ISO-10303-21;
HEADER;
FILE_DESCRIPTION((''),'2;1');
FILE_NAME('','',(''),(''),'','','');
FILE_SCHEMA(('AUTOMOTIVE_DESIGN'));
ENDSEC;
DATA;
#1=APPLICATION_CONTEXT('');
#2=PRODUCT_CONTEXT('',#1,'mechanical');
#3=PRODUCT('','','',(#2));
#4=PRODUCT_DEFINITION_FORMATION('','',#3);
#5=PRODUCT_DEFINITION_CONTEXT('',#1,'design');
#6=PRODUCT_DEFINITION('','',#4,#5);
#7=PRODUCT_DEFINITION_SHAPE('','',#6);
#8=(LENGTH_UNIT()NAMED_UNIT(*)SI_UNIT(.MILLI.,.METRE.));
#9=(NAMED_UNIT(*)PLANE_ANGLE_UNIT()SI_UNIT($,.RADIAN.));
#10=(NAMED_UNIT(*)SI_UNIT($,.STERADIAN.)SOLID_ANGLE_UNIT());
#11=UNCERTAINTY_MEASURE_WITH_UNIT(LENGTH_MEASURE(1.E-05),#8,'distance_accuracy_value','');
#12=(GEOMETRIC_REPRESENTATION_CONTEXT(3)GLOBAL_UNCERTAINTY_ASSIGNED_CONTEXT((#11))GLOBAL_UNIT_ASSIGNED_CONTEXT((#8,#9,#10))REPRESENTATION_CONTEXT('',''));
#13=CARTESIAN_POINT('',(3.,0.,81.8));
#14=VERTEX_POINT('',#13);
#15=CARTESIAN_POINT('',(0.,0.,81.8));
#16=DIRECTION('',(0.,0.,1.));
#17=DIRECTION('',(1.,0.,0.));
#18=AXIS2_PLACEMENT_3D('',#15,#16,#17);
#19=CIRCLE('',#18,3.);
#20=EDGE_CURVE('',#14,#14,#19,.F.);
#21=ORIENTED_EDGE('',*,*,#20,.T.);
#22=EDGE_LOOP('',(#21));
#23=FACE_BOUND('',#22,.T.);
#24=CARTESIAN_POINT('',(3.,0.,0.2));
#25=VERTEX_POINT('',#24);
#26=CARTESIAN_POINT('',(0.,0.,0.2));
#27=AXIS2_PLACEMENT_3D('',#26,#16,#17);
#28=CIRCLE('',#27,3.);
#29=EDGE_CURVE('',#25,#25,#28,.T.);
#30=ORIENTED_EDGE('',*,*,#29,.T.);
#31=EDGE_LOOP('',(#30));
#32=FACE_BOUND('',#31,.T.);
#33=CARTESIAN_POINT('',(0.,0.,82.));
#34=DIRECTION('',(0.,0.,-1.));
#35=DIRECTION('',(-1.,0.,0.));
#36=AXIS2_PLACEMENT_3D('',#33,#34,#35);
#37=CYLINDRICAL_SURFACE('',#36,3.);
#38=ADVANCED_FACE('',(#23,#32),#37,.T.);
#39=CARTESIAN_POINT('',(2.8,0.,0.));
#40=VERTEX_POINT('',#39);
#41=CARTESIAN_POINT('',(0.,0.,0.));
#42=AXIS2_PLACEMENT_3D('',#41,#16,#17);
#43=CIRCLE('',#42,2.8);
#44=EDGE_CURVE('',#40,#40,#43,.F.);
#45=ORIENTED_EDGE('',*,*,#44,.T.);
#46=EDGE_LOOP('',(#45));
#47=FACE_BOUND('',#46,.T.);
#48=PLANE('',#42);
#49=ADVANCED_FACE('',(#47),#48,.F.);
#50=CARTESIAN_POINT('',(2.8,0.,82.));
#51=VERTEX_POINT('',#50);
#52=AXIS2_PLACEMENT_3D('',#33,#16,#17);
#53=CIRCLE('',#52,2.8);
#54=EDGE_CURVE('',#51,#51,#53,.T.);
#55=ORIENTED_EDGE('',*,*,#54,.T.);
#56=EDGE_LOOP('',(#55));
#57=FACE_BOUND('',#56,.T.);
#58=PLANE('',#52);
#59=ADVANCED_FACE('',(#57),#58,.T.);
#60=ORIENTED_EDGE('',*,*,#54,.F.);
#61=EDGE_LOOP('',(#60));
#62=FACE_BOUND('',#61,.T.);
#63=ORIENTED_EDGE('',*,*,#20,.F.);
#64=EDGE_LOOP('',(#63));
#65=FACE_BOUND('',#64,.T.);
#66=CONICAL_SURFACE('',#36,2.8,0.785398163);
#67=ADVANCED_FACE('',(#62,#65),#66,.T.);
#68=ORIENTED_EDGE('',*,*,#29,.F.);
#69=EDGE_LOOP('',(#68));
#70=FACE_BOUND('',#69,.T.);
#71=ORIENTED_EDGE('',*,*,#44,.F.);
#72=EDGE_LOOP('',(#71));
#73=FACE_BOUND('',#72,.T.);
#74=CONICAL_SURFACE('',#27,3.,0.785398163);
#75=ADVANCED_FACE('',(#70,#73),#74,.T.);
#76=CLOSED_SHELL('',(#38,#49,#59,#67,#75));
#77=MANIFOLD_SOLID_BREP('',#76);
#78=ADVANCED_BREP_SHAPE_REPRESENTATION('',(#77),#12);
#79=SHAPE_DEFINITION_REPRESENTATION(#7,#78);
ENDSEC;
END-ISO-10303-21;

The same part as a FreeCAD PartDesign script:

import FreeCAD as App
import Part
import Sketcher
from FreeCAD import Vector
Q = App.Units.Quantity


def edges_at(feature, points):
    """Names of the edges that pass closest to the given points."""
    edges = feature.Shape.Edges
    near = lambda p: min(range(len(edges)), key=lambda i: edges[i].distToShape(Part.Vertex(*p))[0])
    return sorted({f"Edge{near(p) + 1}" for p in points})

doc = App.newDocument("Part")
body = doc.addObject("PartDesign::Body", "Body")

# Sketch on XY plane
sketch1 = body.newObject("Sketcher::SketchObject", "Sketch")
sketch1.AttachmentSupport = (doc.getObject("XY_Plane"), [""])
sketch1.MapMode = "FlatFace"
sketch1.addGeometry(Part.Circle(Vector(0, 0, 0), Vector(0, 0, 1), 3), False)
sketch1.addConstraint(Sketcher.Constraint("Coincident", 0, 3, -1, 1))
sketch1.addConstraint(Sketcher.Constraint("Diameter", 0, Q("6 mm")))
pad1 = body.newObject("PartDesign::Pad", "Pad")
pad1.Profile = sketch1
pad1.Length = 82
doc.recompute()

chamfer = body.newObject("PartDesign::Chamfer", "Chamfer")
chamfer.Base = (pad1, edges_at(pad1, [(-3, 0, 0), (-3, 0, 82)]))
chamfer.Size = 0.2

doc.recompute()
